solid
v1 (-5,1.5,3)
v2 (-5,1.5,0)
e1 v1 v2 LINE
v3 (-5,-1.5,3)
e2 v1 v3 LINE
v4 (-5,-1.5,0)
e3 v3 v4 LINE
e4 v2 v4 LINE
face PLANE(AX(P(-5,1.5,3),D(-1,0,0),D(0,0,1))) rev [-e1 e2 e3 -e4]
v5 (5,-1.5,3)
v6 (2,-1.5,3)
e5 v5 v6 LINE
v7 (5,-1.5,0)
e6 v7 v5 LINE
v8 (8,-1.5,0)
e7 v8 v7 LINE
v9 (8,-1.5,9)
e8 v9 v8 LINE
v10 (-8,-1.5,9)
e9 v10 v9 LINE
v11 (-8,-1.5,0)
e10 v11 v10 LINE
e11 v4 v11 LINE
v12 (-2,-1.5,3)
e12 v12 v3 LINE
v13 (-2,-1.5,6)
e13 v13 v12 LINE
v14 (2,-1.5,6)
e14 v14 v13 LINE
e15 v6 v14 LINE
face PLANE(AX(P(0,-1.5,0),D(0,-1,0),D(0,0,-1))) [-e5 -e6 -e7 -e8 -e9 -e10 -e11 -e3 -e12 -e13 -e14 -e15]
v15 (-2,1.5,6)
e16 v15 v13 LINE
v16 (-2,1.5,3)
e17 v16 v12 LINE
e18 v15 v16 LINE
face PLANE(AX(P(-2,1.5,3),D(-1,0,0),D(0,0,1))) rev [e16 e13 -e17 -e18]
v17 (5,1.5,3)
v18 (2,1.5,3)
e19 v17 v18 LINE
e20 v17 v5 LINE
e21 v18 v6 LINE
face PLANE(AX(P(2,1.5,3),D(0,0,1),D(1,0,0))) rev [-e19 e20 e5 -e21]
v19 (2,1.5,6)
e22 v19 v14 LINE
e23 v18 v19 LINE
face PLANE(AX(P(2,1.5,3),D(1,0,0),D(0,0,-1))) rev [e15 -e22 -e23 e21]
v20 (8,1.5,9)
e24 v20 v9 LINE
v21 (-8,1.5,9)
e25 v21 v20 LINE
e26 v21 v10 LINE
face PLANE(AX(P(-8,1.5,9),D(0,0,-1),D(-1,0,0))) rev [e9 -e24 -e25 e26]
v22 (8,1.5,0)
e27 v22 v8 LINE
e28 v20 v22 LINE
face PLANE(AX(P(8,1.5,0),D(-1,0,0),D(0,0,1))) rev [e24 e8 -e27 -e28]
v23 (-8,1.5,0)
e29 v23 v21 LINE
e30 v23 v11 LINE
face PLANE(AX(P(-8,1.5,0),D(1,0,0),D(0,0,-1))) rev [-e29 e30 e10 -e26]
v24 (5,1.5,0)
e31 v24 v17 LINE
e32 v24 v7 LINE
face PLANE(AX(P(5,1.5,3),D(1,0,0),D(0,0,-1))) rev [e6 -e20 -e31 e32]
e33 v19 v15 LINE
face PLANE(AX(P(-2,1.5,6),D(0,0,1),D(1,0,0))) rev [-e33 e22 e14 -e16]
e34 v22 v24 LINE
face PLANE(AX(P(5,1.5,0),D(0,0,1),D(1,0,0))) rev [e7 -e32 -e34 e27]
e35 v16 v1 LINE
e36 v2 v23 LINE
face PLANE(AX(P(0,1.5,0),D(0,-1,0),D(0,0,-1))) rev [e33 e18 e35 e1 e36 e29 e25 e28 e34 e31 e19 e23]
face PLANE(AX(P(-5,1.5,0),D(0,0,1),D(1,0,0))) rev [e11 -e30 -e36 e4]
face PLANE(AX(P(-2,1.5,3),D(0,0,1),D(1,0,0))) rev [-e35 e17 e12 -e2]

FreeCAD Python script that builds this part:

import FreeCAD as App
import Part
import Sketcher
Q = App.Units.Quantity

doc = App.newDocument("Part")
body = doc.addObject("PartDesign::Body", "Body")

sketch1 = body.newObject("Sketcher::SketchObject", "Sketch")
sketch1.AttachmentSupport = (doc.getObject("XZ_Plane"), [""])
sketch1.MapMode = "FlatFace"
sketch1.addGeometry([
    Part.LineSegment(App.Vector(8, 9, 0), App.Vector(8, 0, 0)),
    Part.LineSegment(App.Vector(8, 0, 0), App.Vector(5, 0, 0)),
    Part.LineSegment(App.Vector(5, 0, 0), App.Vector(5, 3, 0)),
    Part.LineSegment(App.Vector(5, 3, 0), App.Vector(2, 3, 0)),
    Part.LineSegment(App.Vector(2, 3, 0), App.Vector(2, 6, 0)),
    Part.LineSegment(App.Vector(2, 6, 0), App.Vector(-2, 6, 0)),
    Part.LineSegment(App.Vector(-2, 6, 0), App.Vector(-2, 3, 0)),
    Part.LineSegment(App.Vector(-2, 3, 0), App.Vector(-5, 3, 0)),
    Part.LineSegment(App.Vector(-5, 3, 0), App.Vector(-5, 0, 0)),
    Part.LineSegment(App.Vector(-5, 0, 0), App.Vector(-8, 0, 0)),
    Part.LineSegment(App.Vector(-8, 0, 0), App.Vector(-8, 9, 0)),
    Part.LineSegment(App.Vector(-8, 9, 0), App.Vector(8, 9, 0)),
], False)
sketch1.addConstraint([
    Sketcher.Constraint("Coincident", 0, 2, 1, 1),
    Sketcher.Constraint("Coincident", 1, 2, 2, 1),
    Sketcher.Constraint("Coincident", 2, 2, 3, 1),
    Sketcher.Constraint("Coincident", 3, 2, 4, 1),
    Sketcher.Constraint("Coincident", 4, 2, 5, 1),
    Sketcher.Constraint("Coincident", 5, 2, 6, 1),
    Sketcher.Constraint("Coincident", 6, 2, 7, 1),
    Sketcher.Constraint("Coincident", 7, 2, 8, 1),
    Sketcher.Constraint("Coincident", 8, 2, 9, 1),
    Sketcher.Constraint("Coincident", 9, 2, 10, 1),
    Sketcher.Constraint("Coincident", 10, 2, 11, 1),
    Sketcher.Constraint("Coincident", 11, 2, 0, 1),
    Sketcher.Constraint("Vertical", 0),
    Sketcher.Constraint("Horizontal", 1),
    Sketcher.Constraint("Vertical", 2),
    Sketcher.Constraint("Horizontal", 3),
    Sketcher.Constraint("Vertical", 4),
    Sketcher.Constraint("Horizontal", 5),
    Sketcher.Constraint("Vertical", 6),
    Sketcher.Constraint("Horizontal", 7),
    Sketcher.Constraint("Vertical", 8),
    Sketcher.Constraint("Horizontal", 9),
    Sketcher.Constraint("Vertical", 10),
    Sketcher.Constraint("Horizontal", 11),
    Sketcher.Constraint("Symmetric", 1, 2, 8, 2, -1, 1),
    Sketcher.Constraint("Symmetric", 3, 2, 6, 2, -2),
    Sketcher.Constraint("Symmetric", 0, 2, 9, 2, -2),
    Sketcher.Constraint("Equal", 1, 3),
    Sketcher.Constraint("Equal", 9, 2),
    Sketcher.Constraint("Equal", 2, 4),
    Sketcher.Constraint("DistanceX", 1, 2, 1, 1, Q("3 mm")),
    Sketcher.Constraint("DistanceX", 5, 2, 5, 1, Q("4 mm")),
    Sketcher.Constraint("DistanceY", 0, 2, 0, 1, Q("9 mm")),
])
pad1 = body.newObject("PartDesign::Pad", "Pad")
pad1.Profile = sketch1
pad1.Length = 3
pad1.Midplane = True

doc.recompute()
